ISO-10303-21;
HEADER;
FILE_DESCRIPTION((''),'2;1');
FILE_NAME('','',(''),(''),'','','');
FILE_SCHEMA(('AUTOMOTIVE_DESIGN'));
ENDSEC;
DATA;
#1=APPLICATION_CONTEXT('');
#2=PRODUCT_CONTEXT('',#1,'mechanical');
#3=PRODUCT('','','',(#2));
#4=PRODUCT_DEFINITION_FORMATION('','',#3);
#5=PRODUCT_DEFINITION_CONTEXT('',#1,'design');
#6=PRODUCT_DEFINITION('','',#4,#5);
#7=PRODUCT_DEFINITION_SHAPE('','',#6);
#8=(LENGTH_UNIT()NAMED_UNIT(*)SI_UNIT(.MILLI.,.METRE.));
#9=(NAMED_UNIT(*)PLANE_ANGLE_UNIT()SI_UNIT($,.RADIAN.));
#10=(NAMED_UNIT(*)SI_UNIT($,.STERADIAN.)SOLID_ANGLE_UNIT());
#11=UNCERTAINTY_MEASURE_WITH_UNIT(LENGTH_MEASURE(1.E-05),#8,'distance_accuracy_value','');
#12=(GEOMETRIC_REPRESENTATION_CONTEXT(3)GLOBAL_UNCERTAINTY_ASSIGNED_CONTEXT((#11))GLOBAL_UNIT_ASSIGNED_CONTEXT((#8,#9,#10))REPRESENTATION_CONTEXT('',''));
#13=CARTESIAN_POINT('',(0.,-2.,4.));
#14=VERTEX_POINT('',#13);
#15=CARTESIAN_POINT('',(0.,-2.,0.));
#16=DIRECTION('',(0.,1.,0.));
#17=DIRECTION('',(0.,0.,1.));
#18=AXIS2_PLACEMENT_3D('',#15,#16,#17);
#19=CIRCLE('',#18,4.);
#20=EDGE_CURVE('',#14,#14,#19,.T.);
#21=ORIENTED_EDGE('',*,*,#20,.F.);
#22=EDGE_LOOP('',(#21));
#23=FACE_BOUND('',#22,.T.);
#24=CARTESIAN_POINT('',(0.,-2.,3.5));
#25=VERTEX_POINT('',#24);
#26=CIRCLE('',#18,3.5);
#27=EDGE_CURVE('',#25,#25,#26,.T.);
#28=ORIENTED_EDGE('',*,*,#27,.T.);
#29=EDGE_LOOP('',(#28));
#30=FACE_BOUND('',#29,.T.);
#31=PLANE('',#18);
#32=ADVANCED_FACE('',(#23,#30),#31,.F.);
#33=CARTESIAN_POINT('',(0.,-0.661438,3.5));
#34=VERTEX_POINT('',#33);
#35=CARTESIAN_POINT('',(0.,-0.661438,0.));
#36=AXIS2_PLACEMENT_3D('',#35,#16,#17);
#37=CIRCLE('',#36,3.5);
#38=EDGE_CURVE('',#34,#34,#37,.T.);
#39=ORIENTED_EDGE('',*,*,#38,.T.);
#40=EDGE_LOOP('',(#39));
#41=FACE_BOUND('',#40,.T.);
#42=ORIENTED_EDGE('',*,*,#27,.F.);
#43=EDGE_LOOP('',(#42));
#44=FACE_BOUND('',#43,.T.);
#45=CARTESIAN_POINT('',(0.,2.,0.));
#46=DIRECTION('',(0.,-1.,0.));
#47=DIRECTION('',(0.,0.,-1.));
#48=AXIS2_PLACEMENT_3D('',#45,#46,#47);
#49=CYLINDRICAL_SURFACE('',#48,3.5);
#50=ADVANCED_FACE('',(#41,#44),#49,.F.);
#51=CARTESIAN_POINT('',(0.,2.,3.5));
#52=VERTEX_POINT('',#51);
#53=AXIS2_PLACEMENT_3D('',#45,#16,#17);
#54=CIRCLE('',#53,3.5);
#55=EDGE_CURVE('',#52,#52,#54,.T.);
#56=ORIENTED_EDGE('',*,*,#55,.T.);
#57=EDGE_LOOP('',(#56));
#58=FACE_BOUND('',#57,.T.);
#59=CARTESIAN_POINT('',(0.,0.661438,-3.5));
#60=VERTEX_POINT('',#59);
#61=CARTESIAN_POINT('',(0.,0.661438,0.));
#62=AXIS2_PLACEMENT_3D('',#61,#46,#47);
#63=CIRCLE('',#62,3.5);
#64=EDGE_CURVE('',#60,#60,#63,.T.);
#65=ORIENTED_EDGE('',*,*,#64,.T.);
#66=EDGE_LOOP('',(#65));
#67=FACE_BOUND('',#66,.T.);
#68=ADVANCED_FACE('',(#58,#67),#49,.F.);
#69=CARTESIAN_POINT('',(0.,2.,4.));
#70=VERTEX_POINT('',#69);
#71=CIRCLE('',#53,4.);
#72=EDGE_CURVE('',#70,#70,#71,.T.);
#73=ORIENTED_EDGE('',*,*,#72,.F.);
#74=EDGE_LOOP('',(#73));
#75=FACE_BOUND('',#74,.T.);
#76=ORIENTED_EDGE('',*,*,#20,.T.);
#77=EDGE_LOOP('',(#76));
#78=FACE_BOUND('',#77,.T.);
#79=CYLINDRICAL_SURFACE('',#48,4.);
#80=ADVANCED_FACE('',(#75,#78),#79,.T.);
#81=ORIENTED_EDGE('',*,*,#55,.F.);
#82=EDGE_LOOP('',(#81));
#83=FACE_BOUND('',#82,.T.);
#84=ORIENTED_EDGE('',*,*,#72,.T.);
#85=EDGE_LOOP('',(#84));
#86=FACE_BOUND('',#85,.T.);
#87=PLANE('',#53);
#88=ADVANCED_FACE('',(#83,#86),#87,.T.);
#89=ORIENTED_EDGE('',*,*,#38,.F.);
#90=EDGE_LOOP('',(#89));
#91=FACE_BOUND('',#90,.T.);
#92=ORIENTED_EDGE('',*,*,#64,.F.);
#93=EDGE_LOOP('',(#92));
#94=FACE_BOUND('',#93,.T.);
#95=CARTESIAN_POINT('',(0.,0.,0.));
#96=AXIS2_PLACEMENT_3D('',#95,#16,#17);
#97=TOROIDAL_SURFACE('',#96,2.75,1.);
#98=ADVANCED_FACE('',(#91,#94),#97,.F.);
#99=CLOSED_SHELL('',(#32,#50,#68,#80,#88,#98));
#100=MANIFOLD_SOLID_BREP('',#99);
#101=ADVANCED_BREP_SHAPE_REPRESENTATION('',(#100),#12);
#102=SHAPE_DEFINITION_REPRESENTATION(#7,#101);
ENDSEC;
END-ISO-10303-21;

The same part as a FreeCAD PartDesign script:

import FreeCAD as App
import Part
import Sketcher
from FreeCAD import Vector

doc = App.newDocument("Part")
params = doc.addObject("Spreadsheet::Sheet", "Params")
for row, (alias, value) in enumerate([
    ("sketch1_diameter", "8 mm"),
    ("sketch1_diameter2", "7 mm"),
    ("pad1_length", "4 mm"),
    ("sketch2_diameter", "2 mm"),
    ("groove_angle", "360 deg"),
], start=1):
    params.set(f"A{row}", alias)
    params.set(f"B{row}", "=" + value)
    params.setAlias(f"B{row}", alias)

body = doc.addObject("PartDesign::Body", "Body")

# Sketch on XZ plane
sketch1 = body.newObject("Sketcher::SketchObject", "Sketch")
sketch1.AttachmentSupport = (doc.getObject("XZ_Plane"), [""])
sketch1.MapMode = "FlatFace"
sketch1.addGeometry(Part.Circle(Vector(0, 0, 0), Vector(0, 0, 1), 4), False)
sketch1.addGeometry(Part.Circle(Vector(0, 0, 0), Vector(0, 0, 1), 3.5), False)
sketch1.addConstraint(Sketcher.Constraint("Coincident", 0, 3, -1, 1))
sketch1.addConstraint(Sketcher.Constraint("Coincident", 1, 3, -1, 1))
sketch1.addConstraint(Sketcher.Constraint("Diameter", 0, 8.0))
sketch1.addConstraint(Sketcher.Constraint("Diameter", 1, 7.0))
sketch1.setExpression("Constraints[2]", "Params.sketch1_diameter")
sketch1.setExpression("Constraints[3]", "Params.sketch1_diameter2")
pad1 = body.newObject("PartDesign::Pad", "Pad")
pad1.Profile = sketch1
pad1.setExpression("Length", "Params.pad1_length")
pad1.Midplane = True

# Sketch on XY plane
sketch2 = body.newObject("Sketcher::SketchObject", "Sketch001")
sketch2.AttachmentSupport = (doc.getObject("XY_Plane"), [""])
sketch2.MapMode = "FlatFace"
sketch2.addGeometry(Part.Circle(Vector(2.8, 0, 0), Vector(0, 0, 1), 1), False)
sketch2.addConstraint(Sketcher.Constraint("PointOnObject", 0, 3, -1))
sketch2.addConstraint(Sketcher.Constraint("Diameter", 0, 2.0))
sketch2.addConstraint(Sketcher.Constraint("DistanceX", -1, 1, 0, 3, 2.75))
sketch2.setExpression("Constraints[1]", "Params.sketch2_diameter")
groove = body.newObject("PartDesign::Groove", "Groove")
groove.Profile = sketch2
groove.ReferenceAxis = (sketch2, ["V_Axis"])
groove.setExpression("Angle", "Params.groove_angle")

doc.recompute()
